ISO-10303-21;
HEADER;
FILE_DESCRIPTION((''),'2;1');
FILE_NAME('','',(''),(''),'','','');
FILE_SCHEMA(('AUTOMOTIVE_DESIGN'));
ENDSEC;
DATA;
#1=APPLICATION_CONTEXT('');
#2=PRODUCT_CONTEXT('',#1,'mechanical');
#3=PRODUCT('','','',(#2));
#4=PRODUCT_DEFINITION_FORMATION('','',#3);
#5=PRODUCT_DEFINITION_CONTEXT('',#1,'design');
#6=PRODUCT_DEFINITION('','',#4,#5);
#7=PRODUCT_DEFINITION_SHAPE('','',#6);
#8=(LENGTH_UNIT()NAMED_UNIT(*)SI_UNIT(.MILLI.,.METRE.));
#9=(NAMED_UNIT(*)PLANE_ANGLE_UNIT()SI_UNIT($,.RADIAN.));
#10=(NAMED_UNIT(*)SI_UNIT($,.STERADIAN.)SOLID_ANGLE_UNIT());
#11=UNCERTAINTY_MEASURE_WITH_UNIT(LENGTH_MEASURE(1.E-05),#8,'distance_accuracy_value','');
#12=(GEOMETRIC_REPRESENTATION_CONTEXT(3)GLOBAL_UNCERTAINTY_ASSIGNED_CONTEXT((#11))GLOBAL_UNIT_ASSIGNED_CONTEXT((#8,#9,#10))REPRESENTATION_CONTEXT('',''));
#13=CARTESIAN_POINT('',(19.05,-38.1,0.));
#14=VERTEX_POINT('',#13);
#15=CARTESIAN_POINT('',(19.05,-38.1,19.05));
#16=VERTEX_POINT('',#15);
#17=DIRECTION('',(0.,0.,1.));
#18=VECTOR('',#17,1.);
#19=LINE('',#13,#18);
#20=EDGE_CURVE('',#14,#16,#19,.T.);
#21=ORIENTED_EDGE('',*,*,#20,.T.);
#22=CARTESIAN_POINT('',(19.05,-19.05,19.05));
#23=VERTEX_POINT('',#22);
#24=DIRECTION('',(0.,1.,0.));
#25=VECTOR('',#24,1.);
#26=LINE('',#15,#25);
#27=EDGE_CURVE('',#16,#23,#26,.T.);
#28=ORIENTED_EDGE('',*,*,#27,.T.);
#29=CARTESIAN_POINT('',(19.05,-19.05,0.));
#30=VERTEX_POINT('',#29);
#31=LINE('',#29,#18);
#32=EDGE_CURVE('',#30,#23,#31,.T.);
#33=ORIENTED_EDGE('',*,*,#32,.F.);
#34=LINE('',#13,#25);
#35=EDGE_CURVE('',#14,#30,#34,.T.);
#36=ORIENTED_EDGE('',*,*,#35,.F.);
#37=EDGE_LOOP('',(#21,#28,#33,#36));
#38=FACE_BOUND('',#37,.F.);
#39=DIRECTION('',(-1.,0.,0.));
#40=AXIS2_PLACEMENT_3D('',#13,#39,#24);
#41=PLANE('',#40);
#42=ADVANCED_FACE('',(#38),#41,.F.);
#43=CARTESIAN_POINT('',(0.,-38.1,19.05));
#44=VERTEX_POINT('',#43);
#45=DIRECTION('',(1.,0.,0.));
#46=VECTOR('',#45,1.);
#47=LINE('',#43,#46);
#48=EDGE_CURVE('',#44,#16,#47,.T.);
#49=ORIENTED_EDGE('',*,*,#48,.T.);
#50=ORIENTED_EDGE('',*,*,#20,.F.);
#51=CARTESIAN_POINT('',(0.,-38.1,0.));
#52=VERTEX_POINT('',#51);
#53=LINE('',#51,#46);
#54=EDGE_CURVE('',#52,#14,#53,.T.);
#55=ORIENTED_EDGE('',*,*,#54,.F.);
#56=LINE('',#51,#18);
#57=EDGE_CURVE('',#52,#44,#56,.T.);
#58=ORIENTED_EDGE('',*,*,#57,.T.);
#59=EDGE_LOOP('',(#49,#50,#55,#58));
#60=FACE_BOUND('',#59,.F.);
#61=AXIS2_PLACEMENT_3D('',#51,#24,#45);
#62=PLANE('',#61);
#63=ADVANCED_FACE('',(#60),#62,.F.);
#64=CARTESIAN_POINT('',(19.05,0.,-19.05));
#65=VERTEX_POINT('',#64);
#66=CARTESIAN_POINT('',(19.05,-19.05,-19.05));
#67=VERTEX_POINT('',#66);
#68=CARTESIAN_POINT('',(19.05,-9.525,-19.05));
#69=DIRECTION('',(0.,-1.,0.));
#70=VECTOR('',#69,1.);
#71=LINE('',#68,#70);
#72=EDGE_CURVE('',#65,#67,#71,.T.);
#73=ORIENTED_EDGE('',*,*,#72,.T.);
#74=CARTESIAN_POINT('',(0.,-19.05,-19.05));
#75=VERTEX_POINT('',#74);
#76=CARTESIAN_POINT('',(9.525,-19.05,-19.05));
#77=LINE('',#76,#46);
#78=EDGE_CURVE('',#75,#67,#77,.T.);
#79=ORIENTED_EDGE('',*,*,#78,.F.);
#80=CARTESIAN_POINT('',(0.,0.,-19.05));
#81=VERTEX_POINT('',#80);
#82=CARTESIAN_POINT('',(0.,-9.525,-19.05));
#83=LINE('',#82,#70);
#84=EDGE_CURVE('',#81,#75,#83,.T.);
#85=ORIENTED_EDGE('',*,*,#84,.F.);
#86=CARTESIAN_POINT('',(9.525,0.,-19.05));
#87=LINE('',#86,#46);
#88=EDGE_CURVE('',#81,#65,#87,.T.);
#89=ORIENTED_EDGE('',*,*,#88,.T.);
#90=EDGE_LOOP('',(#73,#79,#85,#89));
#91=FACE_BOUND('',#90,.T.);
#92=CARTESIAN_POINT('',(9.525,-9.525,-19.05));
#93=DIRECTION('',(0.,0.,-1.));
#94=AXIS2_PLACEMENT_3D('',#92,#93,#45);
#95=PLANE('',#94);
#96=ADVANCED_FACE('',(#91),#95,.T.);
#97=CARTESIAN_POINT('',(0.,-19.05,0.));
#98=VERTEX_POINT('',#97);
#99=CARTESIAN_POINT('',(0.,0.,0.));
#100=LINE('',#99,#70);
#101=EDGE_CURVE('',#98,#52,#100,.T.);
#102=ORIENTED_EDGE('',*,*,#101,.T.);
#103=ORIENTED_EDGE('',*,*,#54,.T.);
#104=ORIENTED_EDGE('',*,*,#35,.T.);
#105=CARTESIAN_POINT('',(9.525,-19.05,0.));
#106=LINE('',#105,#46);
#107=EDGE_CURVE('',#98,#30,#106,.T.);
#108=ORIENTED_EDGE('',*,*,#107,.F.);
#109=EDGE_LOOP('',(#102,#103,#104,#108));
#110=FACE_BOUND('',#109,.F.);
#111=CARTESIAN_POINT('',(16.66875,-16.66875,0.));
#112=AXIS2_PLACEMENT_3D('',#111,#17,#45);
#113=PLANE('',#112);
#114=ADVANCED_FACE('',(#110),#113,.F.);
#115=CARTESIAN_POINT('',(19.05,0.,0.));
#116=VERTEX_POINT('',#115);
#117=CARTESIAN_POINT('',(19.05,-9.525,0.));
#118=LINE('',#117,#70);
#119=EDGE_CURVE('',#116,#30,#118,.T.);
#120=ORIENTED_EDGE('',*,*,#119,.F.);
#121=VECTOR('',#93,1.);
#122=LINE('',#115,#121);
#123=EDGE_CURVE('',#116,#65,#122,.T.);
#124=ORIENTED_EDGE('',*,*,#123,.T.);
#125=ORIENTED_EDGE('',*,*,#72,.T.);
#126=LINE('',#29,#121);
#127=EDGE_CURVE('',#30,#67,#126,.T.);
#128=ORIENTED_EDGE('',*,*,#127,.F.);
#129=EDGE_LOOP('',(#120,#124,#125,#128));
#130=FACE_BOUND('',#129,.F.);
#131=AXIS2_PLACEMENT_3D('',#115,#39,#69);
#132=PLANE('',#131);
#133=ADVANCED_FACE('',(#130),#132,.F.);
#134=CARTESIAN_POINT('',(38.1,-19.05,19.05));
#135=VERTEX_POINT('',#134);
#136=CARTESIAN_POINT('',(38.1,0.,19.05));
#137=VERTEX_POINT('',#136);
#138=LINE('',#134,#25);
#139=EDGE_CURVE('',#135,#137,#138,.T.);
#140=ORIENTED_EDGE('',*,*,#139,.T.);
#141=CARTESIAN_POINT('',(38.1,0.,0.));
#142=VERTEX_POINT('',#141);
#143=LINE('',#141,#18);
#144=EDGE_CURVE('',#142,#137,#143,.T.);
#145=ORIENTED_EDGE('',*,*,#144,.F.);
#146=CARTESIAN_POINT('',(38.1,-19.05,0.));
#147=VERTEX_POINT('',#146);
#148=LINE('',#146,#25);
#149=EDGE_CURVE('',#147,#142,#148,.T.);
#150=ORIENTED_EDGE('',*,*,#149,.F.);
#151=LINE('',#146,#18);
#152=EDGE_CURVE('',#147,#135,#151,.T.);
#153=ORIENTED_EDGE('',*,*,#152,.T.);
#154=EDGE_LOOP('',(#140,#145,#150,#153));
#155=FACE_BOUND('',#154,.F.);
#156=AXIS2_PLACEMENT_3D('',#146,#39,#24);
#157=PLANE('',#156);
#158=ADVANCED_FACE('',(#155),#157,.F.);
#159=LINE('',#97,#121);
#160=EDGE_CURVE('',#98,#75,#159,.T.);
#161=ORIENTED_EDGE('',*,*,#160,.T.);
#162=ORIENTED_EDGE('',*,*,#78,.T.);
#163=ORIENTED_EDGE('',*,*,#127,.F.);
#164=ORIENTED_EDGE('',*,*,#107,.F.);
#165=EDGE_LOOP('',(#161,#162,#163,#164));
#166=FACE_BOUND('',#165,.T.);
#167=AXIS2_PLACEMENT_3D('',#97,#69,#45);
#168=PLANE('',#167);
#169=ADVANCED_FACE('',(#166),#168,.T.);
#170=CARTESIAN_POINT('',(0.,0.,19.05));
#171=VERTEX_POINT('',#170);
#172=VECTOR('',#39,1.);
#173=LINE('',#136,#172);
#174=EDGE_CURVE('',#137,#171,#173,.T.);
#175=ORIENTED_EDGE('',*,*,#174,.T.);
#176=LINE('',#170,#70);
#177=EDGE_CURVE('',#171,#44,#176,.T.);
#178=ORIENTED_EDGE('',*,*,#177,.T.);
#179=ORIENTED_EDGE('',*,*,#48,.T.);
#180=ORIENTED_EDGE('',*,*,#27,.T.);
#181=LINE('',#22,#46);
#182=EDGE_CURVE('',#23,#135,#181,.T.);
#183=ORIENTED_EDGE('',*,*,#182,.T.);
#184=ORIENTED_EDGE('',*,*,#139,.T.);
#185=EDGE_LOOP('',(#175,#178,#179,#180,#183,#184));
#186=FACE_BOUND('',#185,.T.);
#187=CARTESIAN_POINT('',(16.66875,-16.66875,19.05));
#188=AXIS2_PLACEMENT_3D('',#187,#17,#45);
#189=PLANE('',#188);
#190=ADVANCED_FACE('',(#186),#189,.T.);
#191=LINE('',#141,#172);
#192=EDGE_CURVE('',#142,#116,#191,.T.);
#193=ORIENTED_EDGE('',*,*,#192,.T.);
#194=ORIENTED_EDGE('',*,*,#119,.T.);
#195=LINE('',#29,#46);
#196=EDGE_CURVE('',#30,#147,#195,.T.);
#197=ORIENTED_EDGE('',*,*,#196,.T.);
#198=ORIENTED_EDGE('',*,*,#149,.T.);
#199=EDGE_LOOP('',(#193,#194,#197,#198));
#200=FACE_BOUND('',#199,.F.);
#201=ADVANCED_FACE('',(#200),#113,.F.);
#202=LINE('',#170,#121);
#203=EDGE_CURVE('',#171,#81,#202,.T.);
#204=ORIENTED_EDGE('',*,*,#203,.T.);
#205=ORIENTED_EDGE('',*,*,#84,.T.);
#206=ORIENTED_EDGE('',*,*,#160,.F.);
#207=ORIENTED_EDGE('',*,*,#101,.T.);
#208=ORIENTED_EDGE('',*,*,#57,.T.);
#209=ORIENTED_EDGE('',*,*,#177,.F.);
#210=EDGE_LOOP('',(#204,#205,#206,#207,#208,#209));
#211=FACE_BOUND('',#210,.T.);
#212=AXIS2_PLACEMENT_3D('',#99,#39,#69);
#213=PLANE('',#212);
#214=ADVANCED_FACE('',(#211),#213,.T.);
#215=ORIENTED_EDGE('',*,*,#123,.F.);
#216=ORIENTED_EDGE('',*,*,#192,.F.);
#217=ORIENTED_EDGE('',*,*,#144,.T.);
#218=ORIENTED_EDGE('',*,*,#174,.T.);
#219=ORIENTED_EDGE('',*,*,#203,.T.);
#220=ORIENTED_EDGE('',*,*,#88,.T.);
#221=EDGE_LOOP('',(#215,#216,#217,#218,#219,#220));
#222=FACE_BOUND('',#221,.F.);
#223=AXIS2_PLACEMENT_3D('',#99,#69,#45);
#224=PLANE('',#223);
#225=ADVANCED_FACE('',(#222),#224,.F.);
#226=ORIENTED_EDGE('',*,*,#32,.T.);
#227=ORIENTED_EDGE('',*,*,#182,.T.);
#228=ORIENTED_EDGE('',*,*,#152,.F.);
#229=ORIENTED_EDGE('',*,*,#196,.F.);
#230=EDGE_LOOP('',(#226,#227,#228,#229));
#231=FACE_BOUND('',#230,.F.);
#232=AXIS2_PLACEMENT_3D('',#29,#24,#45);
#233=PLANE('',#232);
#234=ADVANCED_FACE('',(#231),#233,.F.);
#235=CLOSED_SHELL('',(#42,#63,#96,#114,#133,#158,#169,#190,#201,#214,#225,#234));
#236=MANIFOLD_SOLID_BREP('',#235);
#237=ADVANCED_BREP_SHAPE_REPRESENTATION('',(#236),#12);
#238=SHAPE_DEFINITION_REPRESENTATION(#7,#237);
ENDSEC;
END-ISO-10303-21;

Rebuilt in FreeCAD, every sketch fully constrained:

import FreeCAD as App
import Part
import Sketcher

V = App.Vector
Q = App.Units.Quantity

doc = App.newDocument("Part")
body = doc.addObject("PartDesign::Body", "Body")

# Sketch on XY plane
sketch1 = body.newObject("Sketcher::SketchObject", "Sketch")
sketch1.AttachmentSupport = (doc.getObject("XY_Plane"), [""])
sketch1.MapMode = "FlatFace"
sketch1.addGeometry([
    Part.LineSegment(V(38.1, 0, 0), V(0, 0, 0)),  # 0
    Part.LineSegment(V(0, 0, 0), V(0, -38.1, 0)),  # 1
    Part.LineSegment(V(0, -38.1, 0), V(19.05, -38.1, 0)),  # 2
    Part.LineSegment(V(19.05, -38.1, 0), V(19.05, -19.05, 0)),  # 3
    Part.LineSegment(V(19.05, -19.05, 0), V(38.1, -19.05, 0)),  # 4
    Part.LineSegment(V(38.1, -19.05, 0), V(38.1, 0, 0)),  # 5
], False)
sketch1.addConstraint([
    Sketcher.Constraint("Coincident", 0, 2, 1, 1),
    Sketcher.Constraint("Coincident", 1, 2, 2, 1),
    Sketcher.Constraint("Coincident", 2, 2, 3, 1),
    Sketcher.Constraint("Coincident", 3, 2, 4, 1),
    Sketcher.Constraint("Coincident", 4, 2, 5, 1),
    Sketcher.Constraint("Coincident", 5, 2, 0, 1),
    Sketcher.Constraint("Horizontal", 0),
    Sketcher.Constraint("Vertical", 1),
    Sketcher.Constraint("Horizontal", 2),
    Sketcher.Constraint("Vertical", 3),
    Sketcher.Constraint("Horizontal", 4),
    Sketcher.Constraint("Vertical", 5),
    Sketcher.Constraint("Coincident", 0, 2, -1, 1),
    Sketcher.Constraint("Equal", 2, 4),
    Sketcher.Constraint("Equal", 0, 1),
    Sketcher.Constraint("Equal", 4, 3),
    Sketcher.Constraint("DistanceX", 0, 2, 0, 1, Q("1.5 in")),
])
pad1 = body.newObject("PartDesign::Pad", "Pad")
pad1.Profile = sketch1
pad1.Length = Q("0.75 in")

# Sketch on XY plane
sketch2 = body.newObject("Sketcher::SketchObject", "Sketch001")
sketch2.AttachmentSupport = (doc.getObject("XY_Plane"), [""])
sketch2.MapMode = "FlatFace"
sketch2.addGeometry([
    Part.LineSegment(V(0, -19.05, 0), V(0, 0, 0)),
    Part.LineSegment(V(0, 0, 0), V(19.05, 0, 0)),
    Part.LineSegment(V(19.05, 0, 0), V(19.05, -19.05, 0)),
    Part.LineSegment(V(19.05, -19.05, 0), V(0, -19.05, 0)),
], False)
sketch2.addConstraint([
    Sketcher.Constraint("Coincident", 0, 2, 1, 1),
    Sketcher.Constraint("Coincident", 1, 2, 2, 1),
    Sketcher.Constraint("Coincident", 2, 2, 3, 1),
    Sketcher.Constraint("Coincident", 3, 2, 0, 1),
    Sketcher.Constraint("Vertical", 0),
    Sketcher.Constraint("Horizontal", 1),
    Sketcher.Constraint("Vertical", 2),
    Sketcher.Constraint("Horizontal", 3),
    Sketcher.Constraint("Coincident", 0, 2, -1, 1),
    Sketcher.Constraint("Equal", 3, 0),
    Sketcher.Constraint("DistanceX", 1, 1, 1, 2, Q("0.75 in")),
])
pad2 = body.newObject("PartDesign::Pad", "Pad001")
pad2.Profile = sketch2
pad2.Length = Q("0.75 in")
pad2.Reversed = True

doc.recompute()
